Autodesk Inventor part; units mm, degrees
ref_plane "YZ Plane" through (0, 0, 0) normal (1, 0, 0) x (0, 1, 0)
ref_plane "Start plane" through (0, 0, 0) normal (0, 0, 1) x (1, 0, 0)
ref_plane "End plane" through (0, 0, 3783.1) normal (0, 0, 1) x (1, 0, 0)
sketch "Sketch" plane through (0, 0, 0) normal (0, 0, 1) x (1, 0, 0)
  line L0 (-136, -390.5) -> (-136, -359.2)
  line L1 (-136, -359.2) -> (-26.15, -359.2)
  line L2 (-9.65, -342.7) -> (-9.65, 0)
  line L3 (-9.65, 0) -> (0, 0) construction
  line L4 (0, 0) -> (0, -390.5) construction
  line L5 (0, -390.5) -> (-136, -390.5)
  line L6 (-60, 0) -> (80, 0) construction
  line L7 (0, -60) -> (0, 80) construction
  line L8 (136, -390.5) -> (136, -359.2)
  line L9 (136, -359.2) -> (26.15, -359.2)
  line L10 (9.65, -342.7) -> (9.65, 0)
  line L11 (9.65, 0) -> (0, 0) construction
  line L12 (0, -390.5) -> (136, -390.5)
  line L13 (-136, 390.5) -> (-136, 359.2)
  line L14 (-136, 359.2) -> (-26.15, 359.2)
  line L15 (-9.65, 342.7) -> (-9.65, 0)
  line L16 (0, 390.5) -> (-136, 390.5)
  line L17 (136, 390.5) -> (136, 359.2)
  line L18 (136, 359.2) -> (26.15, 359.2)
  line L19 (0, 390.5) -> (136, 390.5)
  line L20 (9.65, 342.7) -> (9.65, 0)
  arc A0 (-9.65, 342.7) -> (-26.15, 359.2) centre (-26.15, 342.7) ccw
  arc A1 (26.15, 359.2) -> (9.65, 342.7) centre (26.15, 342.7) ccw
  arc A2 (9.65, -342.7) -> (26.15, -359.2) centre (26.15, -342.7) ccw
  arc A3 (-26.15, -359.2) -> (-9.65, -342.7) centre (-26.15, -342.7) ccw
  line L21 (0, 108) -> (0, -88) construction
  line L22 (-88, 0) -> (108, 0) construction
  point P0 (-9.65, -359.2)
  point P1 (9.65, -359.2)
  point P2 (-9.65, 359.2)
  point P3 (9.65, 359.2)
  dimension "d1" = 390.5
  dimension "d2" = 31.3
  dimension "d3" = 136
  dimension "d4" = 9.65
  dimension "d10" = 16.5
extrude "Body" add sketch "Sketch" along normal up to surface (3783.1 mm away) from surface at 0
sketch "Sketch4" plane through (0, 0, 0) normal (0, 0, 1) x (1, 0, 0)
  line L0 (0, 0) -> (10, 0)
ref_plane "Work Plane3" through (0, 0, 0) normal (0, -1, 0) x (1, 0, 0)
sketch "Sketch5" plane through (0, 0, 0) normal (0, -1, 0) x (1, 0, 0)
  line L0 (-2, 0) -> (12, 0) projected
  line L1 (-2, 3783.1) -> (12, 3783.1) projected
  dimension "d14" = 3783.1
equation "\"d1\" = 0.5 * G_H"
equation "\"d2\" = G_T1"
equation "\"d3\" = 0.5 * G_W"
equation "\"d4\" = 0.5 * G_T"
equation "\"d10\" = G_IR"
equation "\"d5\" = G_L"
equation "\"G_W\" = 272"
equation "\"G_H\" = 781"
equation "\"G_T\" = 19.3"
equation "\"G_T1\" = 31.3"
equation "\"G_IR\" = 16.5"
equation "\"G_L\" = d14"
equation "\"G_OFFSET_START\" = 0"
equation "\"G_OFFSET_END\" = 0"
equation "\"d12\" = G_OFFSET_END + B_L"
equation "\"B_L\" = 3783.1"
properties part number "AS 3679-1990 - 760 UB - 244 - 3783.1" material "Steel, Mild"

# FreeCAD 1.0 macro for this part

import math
import FreeCAD as App
import Part
import Sketcher
from FreeCAD import Vector
Q = App.Units.Quantity

doc = App.newDocument("Part")
body = doc.addObject("PartDesign::Body", "Body")

# Sketch on XY plane
sketch1 = doc.addObject("Sketcher::SketchObject", "Sketch")
body.addObject(sketch1)
sketch1.AttachmentSupport = (doc.XY_Plane, [""])
sketch1.MapMode = "FlatFace"
sketch1.addGeometry(Part.LineSegment(Vector(-136, -359, 0), Vector(-136, -390, 0)), False)
sketch1.addGeometry(Part.LineSegment(Vector(-136, -390, 0), Vector(136, -390, 0)), False)
sketch1.addGeometry(Part.LineSegment(Vector(136, -390, 0), Vector(136, -359, 0)), False)
sketch1.addGeometry(Part.LineSegment(Vector(136, -359, 0), Vector(26, -359, 0)), False)
sketch1.addGeometry(Part.ArcOfCircle(Part.Circle(Vector(26, -343, 0), Vector(0, 0, 1), 16), math.radians(180), math.radians(270)), False)
sketch1.addGeometry(Part.LineSegment(Vector(10, -343, 0), Vector(10, 343, 0)), False)
sketch1.addGeometry(Part.ArcOfCircle(Part.Circle(Vector(26, 343, 0), Vector(0, 0, 1), 16), math.radians(90), math.radians(180)), False)
sketch1.addGeometry(Part.LineSegment(Vector(26, 359, 0), Vector(136, 359, 0)), False)
sketch1.addGeometry(Part.LineSegment(Vector(136, 359, 0), Vector(136, 390, 0)), False)
sketch1.addGeometry(Part.LineSegment(Vector(136, 390, 0), Vector(-136, 390, 0)), False)
sketch1.addGeometry(Part.LineSegment(Vector(-136, 390, 0), Vector(-136, 359, 0)), False)
sketch1.addGeometry(Part.LineSegment(Vector(-136, 359, 0), Vector(-26, 359, 0)), False)
sketch1.addGeometry(Part.ArcOfCircle(Part.Circle(Vector(-26, 343, 0), Vector(0, 0, 1), 16), math.radians(0), math.radians(90)), False)
sketch1.addGeometry(Part.LineSegment(Vector(-10, 343, 0), Vector(-10, -343, 0)), False)
sketch1.addGeometry(Part.ArcOfCircle(Part.Circle(Vector(-26, -343, 0), Vector(0, 0, 1), 16), math.radians(-90), math.radians(0)), False)
sketch1.addGeometry(Part.LineSegment(Vector(-26, -359, 0), Vector(-136, -359, 0)), False)
sketch1.addConstraint(Sketcher.Constraint("Coincident", 0, 2, 1, 1))
sketch1.addConstraint(Sketcher.Constraint("Coincident", 1, 2, 2, 1))
sketch1.addConstraint(Sketcher.Constraint("Coincident", 2, 2, 3, 1))
sketch1.addConstraint(Sketcher.Constraint("Tangent", 3, 2, 4, 2))
sketch1.addConstraint(Sketcher.Constraint("Tangent", 4, 1, 5, 1))
sketch1.addConstraint(Sketcher.Constraint("Tangent", 5, 2, 6, 2))
sketch1.addConstraint(Sketcher.Constraint("Tangent", 6, 1, 7, 1))
sketch1.addConstraint(Sketcher.Constraint("Coincident", 7, 2, 8, 1))
sketch1.addConstraint(Sketcher.Constraint("Coincident", 8, 2, 9, 1))
sketch1.addConstraint(Sketcher.Constraint("Coincident", 9, 2, 10, 1))
sketch1.addConstraint(Sketcher.Constraint("Coincident", 10, 2, 11, 1))
sketch1.addConstraint(Sketcher.Constraint("Tangent", 11, 2, 12, 2))
sketch1.addConstraint(Sketcher.Constraint("Tangent", 12, 1, 13, 1))
sketch1.addConstraint(Sketcher.Constraint("Tangent", 13, 2, 14, 2))
sketch1.addConstraint(Sketcher.Constraint("Tangent", 14, 1, 15, 1))
sketch1.addConstraint(Sketcher.Constraint("Coincident", 15, 2, 0, 1))
sketch1.addConstraint(Sketcher.Constraint("Vertical", 0))
sketch1.addConstraint(Sketcher.Constraint("Horizontal", 1))
sketch1.addConstraint(Sketcher.Constraint("Vertical", 2))
sketch1.addConstraint(Sketcher.Constraint("Horizontal", 3))
sketch1.addConstraint(Sketcher.Constraint("Vertical", 5))
sketch1.addConstraint(Sketcher.Constraint("Horizontal", 7))
sketch1.addConstraint(Sketcher.Constraint("Vertical", 8))
sketch1.addConstraint(Sketcher.Constraint("Horizontal", 9))
sketch1.addConstraint(Sketcher.Constraint("Vertical", 10))
sketch1.addConstraint(Sketcher.Constraint("Horizontal", 11))
sketch1.addConstraint(Sketcher.Constraint("Vertical", 13))
sketch1.addConstraint(Sketcher.Constraint("Horizontal", 15))
sketch1.addConstraint(Sketcher.Constraint("Equal", 4, 6))
sketch1.addConstraint(Sketcher.Constraint("Equal", 6, 12))
sketch1.addConstraint(Sketcher.Constraint("Equal", 12, 14))
sketch1.addConstraint(Sketcher.Constraint("Symmetric", 4, 3, 12, 3, -1, 1))
sketch1.addConstraint(Sketcher.Constraint("Symmetric", 0, 2, 8, 2, -1, 1))
sketch1.addConstraint(Sketcher.Constraint("Symmetric", 7, 2, 10, 2, -2))
sketch1.addConstraint(Sketcher.Constraint("Symmetric", 2, 2, 15, 2, -2))
sketch1.addConstraint(Sketcher.Constraint("Radius", 4, Q("16.5 mm")))
sketch1.addConstraint(Sketcher.Constraint("DistanceY", 0, 2, 0, 1, Q("31.3 mm")))
sketch1.addConstraint(Sketcher.Constraint("DistanceX", 0, 2, -1, 1, Q("136 mm")))
sketch1.addConstraint(Sketcher.Constraint("DistanceY", 0, 2, -1, 1, Q("390.5 mm")))
sketch1.addConstraint(Sketcher.Constraint("DistanceX", -1, 1, 4, 1, Q("9.65 mm")))
pad1 = doc.addObject("PartDesign::Pad", "Pad")
body.addObject(pad1)
pad1.Profile = sketch1
pad1.Length = 3783.1

doc.recompute()
